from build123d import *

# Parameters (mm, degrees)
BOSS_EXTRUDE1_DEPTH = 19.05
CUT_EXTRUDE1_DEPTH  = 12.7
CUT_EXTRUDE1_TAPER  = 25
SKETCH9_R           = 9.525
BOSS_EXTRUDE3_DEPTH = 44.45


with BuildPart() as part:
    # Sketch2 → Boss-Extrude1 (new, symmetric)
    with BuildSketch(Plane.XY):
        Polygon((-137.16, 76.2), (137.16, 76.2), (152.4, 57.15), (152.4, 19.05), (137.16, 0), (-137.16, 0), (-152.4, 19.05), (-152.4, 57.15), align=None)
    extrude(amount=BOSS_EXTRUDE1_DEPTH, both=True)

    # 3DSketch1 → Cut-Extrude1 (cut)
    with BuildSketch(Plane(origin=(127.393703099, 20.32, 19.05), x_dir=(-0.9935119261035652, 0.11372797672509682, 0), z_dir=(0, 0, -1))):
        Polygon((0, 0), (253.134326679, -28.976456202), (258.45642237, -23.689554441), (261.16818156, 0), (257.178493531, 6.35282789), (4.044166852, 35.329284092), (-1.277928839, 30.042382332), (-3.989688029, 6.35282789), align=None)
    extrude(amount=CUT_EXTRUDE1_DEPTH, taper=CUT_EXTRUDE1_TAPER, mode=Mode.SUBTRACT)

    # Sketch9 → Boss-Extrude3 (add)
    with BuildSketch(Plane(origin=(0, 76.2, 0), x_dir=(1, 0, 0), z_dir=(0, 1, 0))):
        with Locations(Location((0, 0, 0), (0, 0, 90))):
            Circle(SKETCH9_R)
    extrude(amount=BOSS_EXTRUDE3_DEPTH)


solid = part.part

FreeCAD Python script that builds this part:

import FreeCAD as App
import Part
import Sketcher
Q = App.Units.Quantity

doc = App.newDocument("Part")
body = doc.addObject("PartDesign::Body", "Body")

# Sketch on XY plane
sketch1 = doc.addObject("Sketcher::SketchObject", "Sketch")
body.addObject(sketch1)
sketch1.AttachmentSupport = (doc.XY_Plane, [""])
sketch1.MapMode = "FlatFace"
sketch1.addGeometry([
    Part.LineSegment(App.Vector(137, 76, 0), App.Vector(-137, 76, 0)),  # 0
    Part.LineSegment(App.Vector(-137, 76, 0), App.Vector(-152, 57, 0)),  # 1
    Part.LineSegment(App.Vector(-152, 57, 0), App.Vector(-152, 19, 0)),  # 2
    Part.LineSegment(App.Vector(-152, 19, 0), App.Vector(-137, 0, 0)),  # 3
    Part.LineSegment(App.Vector(-137, 0, 0), App.Vector(137, 0, 0)),  # 4
    Part.LineSegment(App.Vector(137, 0, 0), App.Vector(152, 19, 0)),  # 5
    Part.LineSegment(App.Vector(152, 19, 0), App.Vector(152, 57, 0)),  # 6
    Part.LineSegment(App.Vector(152, 57, 0), App.Vector(137, 76, 0)),  # 7
], False)
sketch1.addConstraint([
    Sketcher.Constraint("Coincident", 0, 2, 1, 1),
    Sketcher.Constraint("Coincident", 1, 2, 2, 1),
    Sketcher.Constraint("Coincident", 2, 2, 3, 1),
    Sketcher.Constraint("Coincident", 3, 2, 4, 1),
    Sketcher.Constraint("Coincident", 4, 2, 5, 1),
    Sketcher.Constraint("Coincident", 5, 2, 6, 1),
    Sketcher.Constraint("Coincident", 6, 2, 7, 1),
    Sketcher.Constraint("Coincident", 7, 2, 0, 1),
    Sketcher.Constraint("Horizontal", 0),
    Sketcher.Constraint("Vertical", 2),
    Sketcher.Constraint("Horizontal", 4),
    Sketcher.Constraint("Vertical", 6),
    Sketcher.Constraint("Symmetric", 3, 2, 4, 2, -1, 1),
    Sketcher.Constraint("Symmetric", 2, 2, 5, 2, -2),
    Sketcher.Constraint("Parallel", 1, 5),
    Sketcher.Constraint("Parallel", 3, 7),
    Sketcher.Constraint("Horizontal", 1, 2, 6, 2),
    Sketcher.Constraint("Vertical", 0, 2, 3, 2),
    Sketcher.Constraint("DistanceX", 0, 2, 0, 1, Q("10.8 in")),
    Sketcher.Constraint("DistanceY", 2, 2, 2, 1, Q("1.5 in")),
    Sketcher.Constraint("DistanceY", -1, 1, 0, 2, Q("3 in")),
    Sketcher.Constraint("DistanceX", 1, 2, -1, 1, Q("6 in")),
])
pad1 = doc.addObject("PartDesign::Pad", "Pad")
body.addObject(pad1)
pad1.Profile = sketch1
pad1.Length = Q("1.5 in")
pad1.Midplane = True

# Sketch on XY plane
sketch2 = doc.addObject("Sketcher::SketchObject", "Sketch001")
body.addObject(sketch2)
sketch2.AttachmentSupport = (doc.XY_Plane, [""])
sketch2.MapMode = "FlatFace"
sketch2.AttachmentOffset = App.Placement(App.Vector(0, 0, 0.75 * 25.4), App.Rotation())
sketch2.addGeometry([
    Part.LineSegment(App.Vector(127, 20, 0), App.Vector(-127, 20, 0)),  # 0
    Part.LineSegment(App.Vector(-127, 20, 0), App.Vector(-132, 26, 0)),  # 1
    Part.LineSegment(App.Vector(-132, 26, 0), App.Vector(-132, 50, 0)),  # 2
    Part.LineSegment(App.Vector(-132, 50, 0), App.Vector(-127, 56, 0)),  # 3
    Part.LineSegment(App.Vector(-127, 56, 0), App.Vector(127, 56, 0)),  # 4
    Part.LineSegment(App.Vector(127, 56, 0), App.Vector(132, 50, 0)),  # 5
    Part.LineSegment(App.Vector(132, 50, 0), App.Vector(132, 26, 0)),  # 6
    Part.LineSegment(App.Vector(132, 26, 0), App.Vector(127, 20, 0)),  # 7
], False)
sketch2.addConstraint([
    Sketcher.Constraint("Coincident", 0, 2, 1, 1),
    Sketcher.Constraint("Coincident", 1, 2, 2, 1),
    Sketcher.Constraint("Coincident", 2, 2, 3, 1),
    Sketcher.Constraint("Coincident", 3, 2, 4, 1),
    Sketcher.Constraint("Coincident", 4, 2, 5, 1),
    Sketcher.Constraint("Coincident", 5, 2, 6, 1),
    Sketcher.Constraint("Coincident", 6, 2, 7, 1),
    Sketcher.Constraint("Coincident", 7, 2, 0, 1),
    Sketcher.Constraint("Horizontal", 0),
    Sketcher.Constraint("Vertical", 2),
    Sketcher.Constraint("Horizontal", 4),
    Sketcher.Constraint("Vertical", 6),
    Sketcher.Constraint("Symmetric", 2, 2, 5, 2, -2),
    Sketcher.Constraint("Parallel", 1, 5),
    Sketcher.Constraint("Parallel", 3, 7),
    Sketcher.Constraint("Horizontal", 1, 2, 6, 2),
    Sketcher.Constraint("Vertical", 0, 2, 3, 2),
    Sketcher.Constraint("Vertical", 4, 2, 7, 2),
    Sketcher.Constraint("DistanceY", -1, 1, 0, 2, Q("0.8 in")),
    Sketcher.Constraint("DistanceX", 1, 2, -1, 1, Q("5.2 in")),
    Sketcher.Constraint("DistanceY", -1, 1, 3, 2, Q("2.2 in")),
    Sketcher.Constraint("DistanceX", 0, 2, -1, 1, Q("5.0155001 in")),
    Sketcher.Constraint("DistanceY", 2, 1, 2, 2, Q("23.844258 mm")),
])
pocket1 = doc.addObject("PartDesign::Pocket", "Pocket")
body.addObject(pocket1)
pocket1.Profile = sketch2
pocket1.Length = Q("0.5 in")
pocket1.TaperAngle = -25

# Sketch on XZ plane
sketch3 = doc.addObject("Sketcher::SketchObject", "Sketch002")
body.addObject(sketch3)
sketch3.AttachmentSupport = (doc.XZ_Plane, [""])
sketch3.MapMode = "FlatFace"
sketch3.AttachmentOffset = App.Placement(App.Vector(0, 0, -3 * 25.4), App.Rotation())
sketch3.addGeometry(Part.Circle(App.Vector(0, 0, 0), App.Vector(0, 0, 1), 10), False)
sketch3.addConstraint([
    Sketcher.Constraint("Coincident", 0, 3, -1, 1),
    Sketcher.Constraint("Diameter", 0, Q("0.75 in")),
])
pad2 = doc.addObject("PartDesign::Pad", "Pad001")
body.addObject(pad2)
pad2.Profile = sketch3
pad2.Length = Q("1.75 in")
pad2.Reversed = True

doc.recompute()
